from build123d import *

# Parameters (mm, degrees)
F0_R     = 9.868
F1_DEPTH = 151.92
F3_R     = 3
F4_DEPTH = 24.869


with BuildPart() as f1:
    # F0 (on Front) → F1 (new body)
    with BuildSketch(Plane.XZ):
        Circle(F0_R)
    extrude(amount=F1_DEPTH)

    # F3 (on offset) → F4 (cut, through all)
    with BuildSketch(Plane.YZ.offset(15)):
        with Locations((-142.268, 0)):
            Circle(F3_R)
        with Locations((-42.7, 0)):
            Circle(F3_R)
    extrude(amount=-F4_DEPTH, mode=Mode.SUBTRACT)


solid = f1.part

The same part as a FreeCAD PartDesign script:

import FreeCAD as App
import Part
import Sketcher

V = App.Vector
Q = App.Units.Quantity

doc = App.newDocument("Part")
params = doc.addObject("Spreadsheet::Sheet", "Params")
for row, (alias, value) in enumerate([
    ("pad1_length", "151.92 mm"),
    ("sketch2_diameter", "6 mm"),
], start=1):
    params.set(f"A{row}", alias)
    params.set(f"B{row}", "=" + value)
    params.setAlias(f"B{row}", alias)

body = doc.addObject("PartDesign::Body", "Body")

# Sketch on XZ plane
sketch1 = doc.addObject("Sketcher::SketchObject", "Sketch")
body.addObject(sketch1)
sketch1.AttachmentSupport = (doc.XZ_Plane, [""])
sketch1.MapMode = "FlatFace"
sketch1.addGeometry(Part.Circle(V(0, 0, 0), V(0, 0, 1), 9.868), False)
sketch1.addConstraint(Sketcher.Constraint("Coincident", 0, 3, -1, 1))
sketch1.addConstraint(Sketcher.Constraint("Diameter", 0, Q("19.736 mm")))
pad1 = doc.addObject("PartDesign::Pad", "Pad")
body.addObject(pad1)
pad1.Profile = sketch1
pad1.setExpression("Length", "Params.pad1_length")

# Sketch on YZ plane
sketch2 = doc.addObject("Sketcher::SketchObject", "Sketch001")
body.addObject(sketch2)
sketch2.AttachmentSupport = (doc.YZ_Plane, [""])
sketch2.MapMode = "FlatFace"
sketch2.AttachmentOffset = App.Placement(V(0, 0, 15), App.Rotation())
sketch2.addGeometry(Part.Circle(V(-142.268, 0, 0), V(0, 0, 1), 3), False)
sketch2.addGeometry(Part.Circle(V(-42.7, 0, 0), V(0, 0, 1), 3), False)
sketch2.addConstraint(Sketcher.Constraint("Equal", 0, 1))
sketch2.addConstraint(Sketcher.Constraint("PointOnObject", 0, 3, -1))
sketch2.addConstraint(Sketcher.Constraint("PointOnObject", 1, 3, -1))
sketch2.addConstraint(Sketcher.Constraint("Diameter", 0, Q("6 mm")))
sketch2.addConstraint(Sketcher.Constraint("DistanceX", 1, 3, -1, 1, Q("42.7 mm")))
sketch2.addConstraint(Sketcher.Constraint("DistanceX", 0, 3, -1, 1, Q("142.268 mm")))
sketch2.setExpression("Constraints[3]", "Params.sketch2_diameter")
pocket1 = doc.addObject("PartDesign::Pocket", "Pocket")
body.addObject(pocket1)
pocket1.Profile = sketch2
pocket1.Type = "ThroughAll"

doc.recompute()
